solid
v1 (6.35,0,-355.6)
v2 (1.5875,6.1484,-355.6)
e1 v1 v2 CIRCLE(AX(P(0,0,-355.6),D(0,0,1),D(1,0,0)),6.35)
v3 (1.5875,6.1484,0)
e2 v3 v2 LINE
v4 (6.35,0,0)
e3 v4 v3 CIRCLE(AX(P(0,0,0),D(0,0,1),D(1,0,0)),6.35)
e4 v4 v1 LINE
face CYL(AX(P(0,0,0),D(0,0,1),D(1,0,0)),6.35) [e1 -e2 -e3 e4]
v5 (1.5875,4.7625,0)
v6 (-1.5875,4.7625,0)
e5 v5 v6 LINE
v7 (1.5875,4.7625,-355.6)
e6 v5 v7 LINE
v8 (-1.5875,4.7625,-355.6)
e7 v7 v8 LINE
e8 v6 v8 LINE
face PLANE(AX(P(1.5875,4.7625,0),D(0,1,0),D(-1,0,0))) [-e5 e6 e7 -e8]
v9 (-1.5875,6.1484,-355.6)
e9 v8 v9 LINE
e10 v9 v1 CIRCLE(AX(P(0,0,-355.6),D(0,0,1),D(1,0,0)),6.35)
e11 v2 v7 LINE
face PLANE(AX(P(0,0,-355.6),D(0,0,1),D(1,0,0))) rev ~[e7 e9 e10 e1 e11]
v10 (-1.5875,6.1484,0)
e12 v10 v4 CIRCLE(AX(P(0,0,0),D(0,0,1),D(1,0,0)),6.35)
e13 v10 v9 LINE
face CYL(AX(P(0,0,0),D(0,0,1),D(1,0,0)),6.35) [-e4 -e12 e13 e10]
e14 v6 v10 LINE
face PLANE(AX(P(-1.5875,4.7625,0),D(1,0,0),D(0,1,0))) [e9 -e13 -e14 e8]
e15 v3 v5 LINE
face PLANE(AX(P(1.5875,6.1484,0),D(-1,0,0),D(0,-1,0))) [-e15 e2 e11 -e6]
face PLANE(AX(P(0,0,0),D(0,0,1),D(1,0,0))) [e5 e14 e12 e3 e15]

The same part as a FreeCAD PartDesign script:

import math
import FreeCAD as App
import Part
import Sketcher
Q = App.Units.Quantity

doc = App.newDocument("Part")
params = doc.addObject("Spreadsheet::Sheet", "Params")
for row, (alias, value) in enumerate([
    ("sketch1_radius", "0.25 in"),
    ("sketch1_width", "0.125 in"),
    ("pad1_length", "14 in"),
], start=1):
    params.set(f"A{row}", alias)
    params.set(f"B{row}", "=" + value)
    params.setAlias(f"B{row}", alias)

body = doc.addObject("PartDesign::Body", "Body")

sketch1 = body.newObject("Sketcher::SketchObject", "Sketch")
sketch1.AttachmentSupport = (doc.getObject("XY_Plane"), [""])
sketch1.MapMode = "FlatFace"
sketch1.addGeometry([
    Part.ArcOfCircle(Part.Circle(App.Vector(0, 0, 0), App.Vector(0, 0, 1), 6.3), math.radians(104), math.radians(436)),
    Part.LineSegment(App.Vector(1.6, 6.1, 0), App.Vector(1.6, 4.8, 0)),
    Part.LineSegment(App.Vector(1.6, 4.8, 0), App.Vector(-1.6, 4.8, 0)),
    Part.LineSegment(App.Vector(-1.6, 4.8, 0), App.Vector(-1.6, 6.1, 0)),
], False)
sketch1.addConstraint([
    Sketcher.Constraint("Coincident", 0, 2, 1, 1),
    Sketcher.Constraint("Coincident", 1, 2, 2, 1),
    Sketcher.Constraint("Coincident", 2, 2, 3, 1),
    Sketcher.Constraint("Coincident", 3, 2, 0, 1),
    Sketcher.Constraint("Vertical", 1),
    Sketcher.Constraint("Horizontal", 2),
    Sketcher.Constraint("Vertical", 3),
    Sketcher.Constraint("Coincident", 0, 3, -1, 1),
    Sketcher.Constraint("Horizontal", 0, 2, 3, 2),
    Sketcher.Constraint("Radius", 0, Q("0.25 in")),
    Sketcher.Constraint("DistanceX", 2, 2, 2, 1, Q("0.125 in")),
    Sketcher.Constraint("DistanceY", -1, 1, 1, 2, Q("0.1875 in")),
])
sketch1.setExpression("Constraints[9]", "Params.sketch1_radius")
sketch1.setExpression("Constraints[10]", "Params.sketch1_width")
pad1 = body.newObject("PartDesign::Pad", "Pad")
pad1.Profile = sketch1
pad1.setExpression("Length", "Params.pad1_length")
pad1.Reversed = True

doc.recompute()
